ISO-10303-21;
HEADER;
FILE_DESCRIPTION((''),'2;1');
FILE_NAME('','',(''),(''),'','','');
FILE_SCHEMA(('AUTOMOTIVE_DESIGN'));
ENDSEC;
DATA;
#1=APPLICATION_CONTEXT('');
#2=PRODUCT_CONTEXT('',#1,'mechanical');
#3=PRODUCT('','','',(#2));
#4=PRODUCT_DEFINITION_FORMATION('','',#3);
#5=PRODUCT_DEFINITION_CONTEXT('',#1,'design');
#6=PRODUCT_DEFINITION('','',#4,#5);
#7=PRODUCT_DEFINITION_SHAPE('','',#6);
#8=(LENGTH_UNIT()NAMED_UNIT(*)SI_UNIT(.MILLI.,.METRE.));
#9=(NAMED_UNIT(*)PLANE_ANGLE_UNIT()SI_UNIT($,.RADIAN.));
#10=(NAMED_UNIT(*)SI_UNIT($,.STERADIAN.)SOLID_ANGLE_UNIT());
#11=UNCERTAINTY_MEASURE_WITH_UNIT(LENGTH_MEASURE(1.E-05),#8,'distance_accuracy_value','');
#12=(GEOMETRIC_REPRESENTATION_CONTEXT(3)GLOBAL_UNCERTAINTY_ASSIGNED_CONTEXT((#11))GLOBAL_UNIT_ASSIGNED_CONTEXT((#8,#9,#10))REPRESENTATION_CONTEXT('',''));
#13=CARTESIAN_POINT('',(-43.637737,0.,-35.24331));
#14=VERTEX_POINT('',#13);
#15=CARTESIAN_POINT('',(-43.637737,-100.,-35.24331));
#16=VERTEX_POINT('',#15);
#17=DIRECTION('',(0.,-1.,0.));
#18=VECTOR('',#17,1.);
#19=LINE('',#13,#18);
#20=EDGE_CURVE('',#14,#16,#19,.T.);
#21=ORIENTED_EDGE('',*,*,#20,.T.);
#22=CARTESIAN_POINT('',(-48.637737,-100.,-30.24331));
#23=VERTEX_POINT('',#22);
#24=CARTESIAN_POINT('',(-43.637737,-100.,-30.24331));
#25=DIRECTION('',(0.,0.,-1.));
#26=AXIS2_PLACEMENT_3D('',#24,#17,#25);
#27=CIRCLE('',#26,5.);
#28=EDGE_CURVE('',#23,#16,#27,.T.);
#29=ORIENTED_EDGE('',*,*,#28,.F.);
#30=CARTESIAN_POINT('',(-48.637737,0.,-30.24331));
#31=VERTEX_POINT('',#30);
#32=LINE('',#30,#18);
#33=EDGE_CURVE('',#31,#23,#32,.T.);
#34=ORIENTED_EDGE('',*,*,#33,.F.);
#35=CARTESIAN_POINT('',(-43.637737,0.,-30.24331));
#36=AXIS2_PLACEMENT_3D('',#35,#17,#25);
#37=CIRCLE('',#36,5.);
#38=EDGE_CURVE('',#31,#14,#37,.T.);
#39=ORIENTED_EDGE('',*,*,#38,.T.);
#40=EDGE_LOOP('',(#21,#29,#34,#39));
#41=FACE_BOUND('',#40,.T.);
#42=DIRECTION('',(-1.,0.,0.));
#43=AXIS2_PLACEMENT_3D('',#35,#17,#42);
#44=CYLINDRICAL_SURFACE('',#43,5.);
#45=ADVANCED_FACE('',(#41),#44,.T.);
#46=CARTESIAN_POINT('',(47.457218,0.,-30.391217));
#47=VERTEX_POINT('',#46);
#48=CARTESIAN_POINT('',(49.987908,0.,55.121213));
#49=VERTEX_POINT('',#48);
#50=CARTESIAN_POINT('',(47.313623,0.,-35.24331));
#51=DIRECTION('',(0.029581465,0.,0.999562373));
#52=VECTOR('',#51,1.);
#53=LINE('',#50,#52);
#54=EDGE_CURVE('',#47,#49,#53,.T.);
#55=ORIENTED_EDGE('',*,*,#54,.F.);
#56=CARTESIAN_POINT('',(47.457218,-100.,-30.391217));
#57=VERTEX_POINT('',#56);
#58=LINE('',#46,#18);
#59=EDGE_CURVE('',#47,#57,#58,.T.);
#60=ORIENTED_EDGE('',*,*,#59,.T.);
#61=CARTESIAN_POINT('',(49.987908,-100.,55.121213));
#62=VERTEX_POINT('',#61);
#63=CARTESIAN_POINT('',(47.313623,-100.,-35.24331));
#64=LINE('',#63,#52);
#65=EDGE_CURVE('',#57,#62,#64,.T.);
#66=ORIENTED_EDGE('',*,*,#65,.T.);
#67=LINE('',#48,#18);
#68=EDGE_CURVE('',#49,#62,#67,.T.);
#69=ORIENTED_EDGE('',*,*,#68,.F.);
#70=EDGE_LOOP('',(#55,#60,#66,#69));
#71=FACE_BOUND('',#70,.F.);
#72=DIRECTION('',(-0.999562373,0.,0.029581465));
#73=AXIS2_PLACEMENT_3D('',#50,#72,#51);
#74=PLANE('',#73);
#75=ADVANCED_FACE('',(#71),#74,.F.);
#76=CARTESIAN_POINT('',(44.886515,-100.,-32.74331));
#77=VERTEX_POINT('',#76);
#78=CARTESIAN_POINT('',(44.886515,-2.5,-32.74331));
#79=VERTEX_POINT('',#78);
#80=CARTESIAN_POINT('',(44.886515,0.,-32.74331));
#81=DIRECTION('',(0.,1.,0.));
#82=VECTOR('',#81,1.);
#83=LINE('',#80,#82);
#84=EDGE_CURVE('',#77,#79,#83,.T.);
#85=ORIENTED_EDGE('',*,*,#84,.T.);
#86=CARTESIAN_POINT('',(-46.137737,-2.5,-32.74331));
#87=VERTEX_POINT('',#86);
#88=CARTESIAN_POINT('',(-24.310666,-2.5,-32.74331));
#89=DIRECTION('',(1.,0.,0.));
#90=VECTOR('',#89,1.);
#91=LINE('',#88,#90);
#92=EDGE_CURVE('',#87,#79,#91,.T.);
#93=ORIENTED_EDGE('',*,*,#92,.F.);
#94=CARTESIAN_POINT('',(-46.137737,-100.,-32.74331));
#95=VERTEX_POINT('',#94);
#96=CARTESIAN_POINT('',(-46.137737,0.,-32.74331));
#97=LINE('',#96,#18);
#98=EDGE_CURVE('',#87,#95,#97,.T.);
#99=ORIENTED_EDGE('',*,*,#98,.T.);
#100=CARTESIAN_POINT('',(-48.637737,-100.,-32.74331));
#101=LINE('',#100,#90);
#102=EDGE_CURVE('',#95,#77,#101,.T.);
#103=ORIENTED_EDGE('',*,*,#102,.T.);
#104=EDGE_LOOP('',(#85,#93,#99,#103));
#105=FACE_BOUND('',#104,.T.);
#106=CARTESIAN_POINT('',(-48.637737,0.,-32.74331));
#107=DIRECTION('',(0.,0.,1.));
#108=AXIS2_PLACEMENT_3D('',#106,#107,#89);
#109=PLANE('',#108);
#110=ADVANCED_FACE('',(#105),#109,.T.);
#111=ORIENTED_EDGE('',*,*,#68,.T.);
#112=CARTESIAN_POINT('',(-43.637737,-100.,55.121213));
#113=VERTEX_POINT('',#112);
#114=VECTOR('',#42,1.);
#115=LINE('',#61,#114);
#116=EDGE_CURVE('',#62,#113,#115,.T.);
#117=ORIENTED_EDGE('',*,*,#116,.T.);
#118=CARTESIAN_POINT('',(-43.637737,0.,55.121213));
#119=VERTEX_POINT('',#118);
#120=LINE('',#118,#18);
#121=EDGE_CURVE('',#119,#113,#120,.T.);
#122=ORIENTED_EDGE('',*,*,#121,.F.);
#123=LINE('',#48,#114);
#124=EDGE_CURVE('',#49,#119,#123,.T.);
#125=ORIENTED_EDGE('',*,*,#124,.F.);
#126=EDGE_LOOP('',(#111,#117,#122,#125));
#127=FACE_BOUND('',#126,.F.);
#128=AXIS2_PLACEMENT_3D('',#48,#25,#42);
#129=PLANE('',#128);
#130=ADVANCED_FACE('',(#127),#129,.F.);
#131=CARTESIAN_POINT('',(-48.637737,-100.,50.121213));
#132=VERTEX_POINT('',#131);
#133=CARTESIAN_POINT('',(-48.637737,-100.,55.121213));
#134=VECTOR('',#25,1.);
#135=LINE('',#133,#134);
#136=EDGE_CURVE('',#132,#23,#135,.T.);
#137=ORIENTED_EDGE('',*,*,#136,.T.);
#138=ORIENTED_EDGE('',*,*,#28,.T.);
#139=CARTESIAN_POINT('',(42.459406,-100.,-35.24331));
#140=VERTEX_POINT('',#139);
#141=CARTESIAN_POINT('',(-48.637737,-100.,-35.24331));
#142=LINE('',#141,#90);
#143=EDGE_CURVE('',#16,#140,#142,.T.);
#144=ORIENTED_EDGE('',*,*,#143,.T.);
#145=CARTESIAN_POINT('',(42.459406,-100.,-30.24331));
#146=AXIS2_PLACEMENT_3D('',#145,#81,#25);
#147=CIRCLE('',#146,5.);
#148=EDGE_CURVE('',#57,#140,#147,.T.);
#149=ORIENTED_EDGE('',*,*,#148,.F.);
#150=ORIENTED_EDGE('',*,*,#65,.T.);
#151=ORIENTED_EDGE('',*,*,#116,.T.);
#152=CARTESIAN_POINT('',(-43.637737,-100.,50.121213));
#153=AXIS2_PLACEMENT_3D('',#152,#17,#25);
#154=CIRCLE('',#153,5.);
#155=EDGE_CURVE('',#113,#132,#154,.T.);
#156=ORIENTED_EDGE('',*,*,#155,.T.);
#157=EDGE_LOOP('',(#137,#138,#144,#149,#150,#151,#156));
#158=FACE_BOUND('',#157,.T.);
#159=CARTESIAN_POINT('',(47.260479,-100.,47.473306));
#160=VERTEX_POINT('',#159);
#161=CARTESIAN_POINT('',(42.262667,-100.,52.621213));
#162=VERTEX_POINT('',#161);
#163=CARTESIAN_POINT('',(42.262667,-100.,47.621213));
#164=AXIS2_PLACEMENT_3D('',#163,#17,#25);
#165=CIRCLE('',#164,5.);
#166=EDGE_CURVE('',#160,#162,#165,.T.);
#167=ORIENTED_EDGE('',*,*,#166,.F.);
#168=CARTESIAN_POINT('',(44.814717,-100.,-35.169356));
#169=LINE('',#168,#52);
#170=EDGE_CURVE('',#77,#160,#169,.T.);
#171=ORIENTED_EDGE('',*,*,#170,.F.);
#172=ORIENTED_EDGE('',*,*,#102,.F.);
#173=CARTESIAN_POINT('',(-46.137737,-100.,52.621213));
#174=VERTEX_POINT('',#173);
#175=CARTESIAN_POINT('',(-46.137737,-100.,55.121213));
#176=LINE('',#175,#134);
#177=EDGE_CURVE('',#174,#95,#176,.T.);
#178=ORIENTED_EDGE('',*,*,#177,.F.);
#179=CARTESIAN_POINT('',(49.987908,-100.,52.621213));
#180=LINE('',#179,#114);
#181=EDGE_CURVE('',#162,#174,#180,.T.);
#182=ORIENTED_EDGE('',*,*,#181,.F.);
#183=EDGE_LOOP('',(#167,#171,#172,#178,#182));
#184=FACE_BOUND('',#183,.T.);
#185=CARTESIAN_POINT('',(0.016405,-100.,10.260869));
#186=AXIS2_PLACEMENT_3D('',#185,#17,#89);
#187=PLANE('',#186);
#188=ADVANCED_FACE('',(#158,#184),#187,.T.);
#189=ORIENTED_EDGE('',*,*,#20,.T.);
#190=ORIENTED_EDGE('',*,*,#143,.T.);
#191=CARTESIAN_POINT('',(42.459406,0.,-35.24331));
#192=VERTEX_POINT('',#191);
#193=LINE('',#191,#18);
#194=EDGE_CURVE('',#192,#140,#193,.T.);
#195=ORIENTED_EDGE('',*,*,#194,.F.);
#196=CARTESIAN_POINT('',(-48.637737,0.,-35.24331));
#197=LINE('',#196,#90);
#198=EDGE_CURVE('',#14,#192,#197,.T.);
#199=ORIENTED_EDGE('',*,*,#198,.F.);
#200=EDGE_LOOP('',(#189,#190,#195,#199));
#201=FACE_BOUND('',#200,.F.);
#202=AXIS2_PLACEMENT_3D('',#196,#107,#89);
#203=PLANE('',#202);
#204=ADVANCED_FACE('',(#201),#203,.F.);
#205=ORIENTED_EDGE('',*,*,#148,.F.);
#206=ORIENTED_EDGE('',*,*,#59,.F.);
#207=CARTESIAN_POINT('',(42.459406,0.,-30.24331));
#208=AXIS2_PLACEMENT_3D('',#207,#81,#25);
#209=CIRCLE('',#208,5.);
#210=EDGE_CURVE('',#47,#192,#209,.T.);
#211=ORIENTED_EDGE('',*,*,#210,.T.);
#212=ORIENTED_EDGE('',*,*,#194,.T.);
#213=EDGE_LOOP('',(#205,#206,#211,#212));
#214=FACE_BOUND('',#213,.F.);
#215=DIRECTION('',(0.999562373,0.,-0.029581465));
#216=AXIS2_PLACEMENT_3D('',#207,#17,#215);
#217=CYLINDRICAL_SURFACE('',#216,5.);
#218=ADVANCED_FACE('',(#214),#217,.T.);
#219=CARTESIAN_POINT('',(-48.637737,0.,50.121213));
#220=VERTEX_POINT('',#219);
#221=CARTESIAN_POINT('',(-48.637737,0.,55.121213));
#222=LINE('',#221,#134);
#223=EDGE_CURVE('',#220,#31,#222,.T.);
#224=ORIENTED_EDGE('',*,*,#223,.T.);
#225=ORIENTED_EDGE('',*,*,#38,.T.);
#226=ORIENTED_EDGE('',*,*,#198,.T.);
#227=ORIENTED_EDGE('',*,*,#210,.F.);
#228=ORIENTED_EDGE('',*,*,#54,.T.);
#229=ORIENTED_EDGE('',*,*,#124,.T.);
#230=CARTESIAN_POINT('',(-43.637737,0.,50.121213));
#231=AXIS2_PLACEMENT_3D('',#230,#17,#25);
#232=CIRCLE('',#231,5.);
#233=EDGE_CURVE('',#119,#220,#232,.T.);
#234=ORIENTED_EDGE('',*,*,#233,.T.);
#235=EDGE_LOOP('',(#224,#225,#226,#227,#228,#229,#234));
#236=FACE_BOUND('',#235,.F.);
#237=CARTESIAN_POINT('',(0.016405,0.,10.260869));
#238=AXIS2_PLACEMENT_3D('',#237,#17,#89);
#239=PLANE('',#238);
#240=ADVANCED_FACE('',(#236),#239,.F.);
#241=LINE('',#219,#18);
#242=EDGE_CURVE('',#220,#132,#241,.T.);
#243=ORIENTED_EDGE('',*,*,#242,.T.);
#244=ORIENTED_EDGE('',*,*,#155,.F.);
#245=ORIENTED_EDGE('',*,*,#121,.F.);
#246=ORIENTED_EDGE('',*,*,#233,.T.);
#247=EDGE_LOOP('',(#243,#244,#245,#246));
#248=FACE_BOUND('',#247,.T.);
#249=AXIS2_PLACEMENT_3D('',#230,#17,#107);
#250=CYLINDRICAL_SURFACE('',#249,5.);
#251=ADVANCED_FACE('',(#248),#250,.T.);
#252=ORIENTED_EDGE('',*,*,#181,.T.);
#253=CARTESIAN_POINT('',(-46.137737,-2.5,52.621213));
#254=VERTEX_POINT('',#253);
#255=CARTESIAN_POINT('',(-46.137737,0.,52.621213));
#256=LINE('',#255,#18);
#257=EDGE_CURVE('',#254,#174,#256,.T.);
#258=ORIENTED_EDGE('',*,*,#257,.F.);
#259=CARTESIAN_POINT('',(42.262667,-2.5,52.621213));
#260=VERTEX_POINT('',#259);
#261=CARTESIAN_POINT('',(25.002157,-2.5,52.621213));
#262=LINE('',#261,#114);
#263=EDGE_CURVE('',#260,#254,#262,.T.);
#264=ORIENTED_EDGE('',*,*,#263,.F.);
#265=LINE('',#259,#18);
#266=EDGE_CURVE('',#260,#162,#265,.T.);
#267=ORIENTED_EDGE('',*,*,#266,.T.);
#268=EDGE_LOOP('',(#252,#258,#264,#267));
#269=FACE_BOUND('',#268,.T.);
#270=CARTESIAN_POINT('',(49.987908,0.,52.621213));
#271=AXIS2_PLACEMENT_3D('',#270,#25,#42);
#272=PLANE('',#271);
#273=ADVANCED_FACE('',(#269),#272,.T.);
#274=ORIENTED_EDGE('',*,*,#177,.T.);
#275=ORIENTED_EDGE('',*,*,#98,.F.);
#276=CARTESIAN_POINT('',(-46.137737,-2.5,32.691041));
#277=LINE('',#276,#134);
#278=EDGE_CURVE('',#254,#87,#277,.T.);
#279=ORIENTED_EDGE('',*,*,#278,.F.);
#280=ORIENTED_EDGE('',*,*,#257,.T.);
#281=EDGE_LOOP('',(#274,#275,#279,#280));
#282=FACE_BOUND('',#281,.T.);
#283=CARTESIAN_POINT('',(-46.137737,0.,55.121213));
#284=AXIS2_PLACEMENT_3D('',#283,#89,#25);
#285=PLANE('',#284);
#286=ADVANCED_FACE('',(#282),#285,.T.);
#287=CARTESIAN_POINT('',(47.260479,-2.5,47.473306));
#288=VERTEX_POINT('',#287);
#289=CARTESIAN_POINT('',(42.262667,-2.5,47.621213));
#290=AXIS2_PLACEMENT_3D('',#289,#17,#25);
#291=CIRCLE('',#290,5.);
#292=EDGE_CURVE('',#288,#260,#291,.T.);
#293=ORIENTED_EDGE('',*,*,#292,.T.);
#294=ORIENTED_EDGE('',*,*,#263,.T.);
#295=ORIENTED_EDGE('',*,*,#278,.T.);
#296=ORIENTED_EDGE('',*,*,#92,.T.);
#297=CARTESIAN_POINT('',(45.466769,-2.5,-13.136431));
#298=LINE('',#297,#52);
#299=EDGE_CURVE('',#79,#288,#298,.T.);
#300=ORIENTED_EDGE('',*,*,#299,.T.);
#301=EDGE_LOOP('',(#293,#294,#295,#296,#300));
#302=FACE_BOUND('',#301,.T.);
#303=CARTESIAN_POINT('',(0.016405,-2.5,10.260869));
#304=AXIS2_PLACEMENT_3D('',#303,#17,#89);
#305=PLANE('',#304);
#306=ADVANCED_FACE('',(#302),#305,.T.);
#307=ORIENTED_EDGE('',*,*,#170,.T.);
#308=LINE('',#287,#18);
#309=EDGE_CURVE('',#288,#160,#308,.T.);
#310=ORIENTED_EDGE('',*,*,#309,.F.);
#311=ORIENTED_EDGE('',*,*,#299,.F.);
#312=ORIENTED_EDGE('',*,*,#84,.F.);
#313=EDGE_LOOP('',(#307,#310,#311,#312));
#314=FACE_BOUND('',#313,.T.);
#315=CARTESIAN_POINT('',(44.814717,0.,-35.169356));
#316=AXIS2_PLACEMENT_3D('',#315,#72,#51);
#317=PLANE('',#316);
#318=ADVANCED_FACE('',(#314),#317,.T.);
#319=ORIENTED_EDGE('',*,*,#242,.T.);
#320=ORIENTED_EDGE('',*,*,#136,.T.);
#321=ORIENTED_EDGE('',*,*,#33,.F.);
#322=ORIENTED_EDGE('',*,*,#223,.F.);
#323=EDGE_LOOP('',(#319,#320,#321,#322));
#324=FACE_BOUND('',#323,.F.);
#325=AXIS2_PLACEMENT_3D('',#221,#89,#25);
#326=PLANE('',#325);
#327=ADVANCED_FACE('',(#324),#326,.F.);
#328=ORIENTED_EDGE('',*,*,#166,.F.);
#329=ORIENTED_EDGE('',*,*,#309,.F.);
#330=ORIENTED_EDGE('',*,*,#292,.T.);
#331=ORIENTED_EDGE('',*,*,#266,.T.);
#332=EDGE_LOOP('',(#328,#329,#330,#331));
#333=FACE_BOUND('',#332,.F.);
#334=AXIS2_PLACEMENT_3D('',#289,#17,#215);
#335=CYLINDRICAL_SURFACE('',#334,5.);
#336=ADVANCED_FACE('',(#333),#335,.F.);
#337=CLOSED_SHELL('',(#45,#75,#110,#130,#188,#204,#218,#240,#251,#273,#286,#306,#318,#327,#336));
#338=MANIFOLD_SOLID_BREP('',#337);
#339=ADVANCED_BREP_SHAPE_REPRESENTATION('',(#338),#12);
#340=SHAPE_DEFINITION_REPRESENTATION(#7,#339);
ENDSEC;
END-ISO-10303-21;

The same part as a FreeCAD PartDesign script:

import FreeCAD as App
import Part
import Sketcher


def edges_at(feature, points):
    """Names of the edges that pass closest to the given points."""
    edges = feature.Shape.Edges
    near = lambda p: min(range(len(edges)), key=lambda i: edges[i].distToShape(Part.Vertex(*p))[0])
    return sorted({f"Edge{near(p) + 1}" for p in points})


def faces_at(feature, points):
    """Names of the faces that lie closest to the given points."""
    faces = feature.Shape.Faces
    near = lambda p: min(range(len(faces)), key=lambda i: faces[i].distToShape(Part.Vertex(*p))[0])
    return sorted({f"Face{near(p) + 1}" for p in points})


def add_polygon(sketch, points):
    """Adds a closed chain of lines whose ends are joined by coincident constraints."""
    first, n = sketch.GeometryCount, len(points)
    for a, b in zip(points, points[1:] + points[:1]):
        sketch.addGeometry(Part.LineSegment(App.Vector(*a, 0), App.Vector(*b, 0)), False)
    for i in range(n):
        sketch.addConstraint(Sketcher.Constraint("Coincident", first + i, 2, first + (i + 1) % n, 1))

doc = App.newDocument("Part")
body = doc.addObject("PartDesign::Body", "Body")

# Sketch on XZ plane
sketch1 = body.newObject("Sketcher::SketchObject", "Sketch")
sketch1.AttachmentSupport = (doc.getObject("XZ_Plane"), [""])
sketch1.MapMode = "FlatFace"
add_polygon(sketch1, [(47, -35), (50, 55), (-49, 55), (-49, -35)])  # lines 0-3
sketch1.addConstraint([
    Sketcher.Constraint("Horizontal", 1),
    Sketcher.Constraint("Vertical", 2),
    Sketcher.Constraint("Horizontal", 3),
    Sketcher.Constraint("DistanceX", 3, 1, 3, 2, 95.95136),
    Sketcher.Constraint("DistanceX", 1, 2, 1, 1, 98.625645),
    Sketcher.Constraint("DistanceY", 2, 2, 2, 1, 90.364523),
    Sketcher.Constraint("DistanceX", -1, 1, 0, 2, 49.987908),
    Sketcher.Constraint("DistanceY", 2, 2, -1, 1, 35.24331),
])
pad1 = body.newObject("PartDesign::Pad", "Pad")
pad1.Profile = sketch1
pad1.Length = 100
doc.recompute()

thickness = body.newObject("PartDesign::Thickness", "Thickness")
thickness.Base = (pad1, faces_at(pad1, [(0.675, -100, 9.939)]))
thickness.Value = 2.5
thickness.Reversed = True
thickness.Join = "Arc"
doc.recompute()

fillet = body.newObject("PartDesign::Fillet", "Fillet")
fillet.Base = (thickness, edges_at(thickness, [
    (-48.638, -50, 55.121),
    (47.413, -51.25, 52.621),
    (-48.638, -50, -35.243),
    (47.314, -50, -35.243),
]))
fillet.Radius = 5

doc.recompute()
